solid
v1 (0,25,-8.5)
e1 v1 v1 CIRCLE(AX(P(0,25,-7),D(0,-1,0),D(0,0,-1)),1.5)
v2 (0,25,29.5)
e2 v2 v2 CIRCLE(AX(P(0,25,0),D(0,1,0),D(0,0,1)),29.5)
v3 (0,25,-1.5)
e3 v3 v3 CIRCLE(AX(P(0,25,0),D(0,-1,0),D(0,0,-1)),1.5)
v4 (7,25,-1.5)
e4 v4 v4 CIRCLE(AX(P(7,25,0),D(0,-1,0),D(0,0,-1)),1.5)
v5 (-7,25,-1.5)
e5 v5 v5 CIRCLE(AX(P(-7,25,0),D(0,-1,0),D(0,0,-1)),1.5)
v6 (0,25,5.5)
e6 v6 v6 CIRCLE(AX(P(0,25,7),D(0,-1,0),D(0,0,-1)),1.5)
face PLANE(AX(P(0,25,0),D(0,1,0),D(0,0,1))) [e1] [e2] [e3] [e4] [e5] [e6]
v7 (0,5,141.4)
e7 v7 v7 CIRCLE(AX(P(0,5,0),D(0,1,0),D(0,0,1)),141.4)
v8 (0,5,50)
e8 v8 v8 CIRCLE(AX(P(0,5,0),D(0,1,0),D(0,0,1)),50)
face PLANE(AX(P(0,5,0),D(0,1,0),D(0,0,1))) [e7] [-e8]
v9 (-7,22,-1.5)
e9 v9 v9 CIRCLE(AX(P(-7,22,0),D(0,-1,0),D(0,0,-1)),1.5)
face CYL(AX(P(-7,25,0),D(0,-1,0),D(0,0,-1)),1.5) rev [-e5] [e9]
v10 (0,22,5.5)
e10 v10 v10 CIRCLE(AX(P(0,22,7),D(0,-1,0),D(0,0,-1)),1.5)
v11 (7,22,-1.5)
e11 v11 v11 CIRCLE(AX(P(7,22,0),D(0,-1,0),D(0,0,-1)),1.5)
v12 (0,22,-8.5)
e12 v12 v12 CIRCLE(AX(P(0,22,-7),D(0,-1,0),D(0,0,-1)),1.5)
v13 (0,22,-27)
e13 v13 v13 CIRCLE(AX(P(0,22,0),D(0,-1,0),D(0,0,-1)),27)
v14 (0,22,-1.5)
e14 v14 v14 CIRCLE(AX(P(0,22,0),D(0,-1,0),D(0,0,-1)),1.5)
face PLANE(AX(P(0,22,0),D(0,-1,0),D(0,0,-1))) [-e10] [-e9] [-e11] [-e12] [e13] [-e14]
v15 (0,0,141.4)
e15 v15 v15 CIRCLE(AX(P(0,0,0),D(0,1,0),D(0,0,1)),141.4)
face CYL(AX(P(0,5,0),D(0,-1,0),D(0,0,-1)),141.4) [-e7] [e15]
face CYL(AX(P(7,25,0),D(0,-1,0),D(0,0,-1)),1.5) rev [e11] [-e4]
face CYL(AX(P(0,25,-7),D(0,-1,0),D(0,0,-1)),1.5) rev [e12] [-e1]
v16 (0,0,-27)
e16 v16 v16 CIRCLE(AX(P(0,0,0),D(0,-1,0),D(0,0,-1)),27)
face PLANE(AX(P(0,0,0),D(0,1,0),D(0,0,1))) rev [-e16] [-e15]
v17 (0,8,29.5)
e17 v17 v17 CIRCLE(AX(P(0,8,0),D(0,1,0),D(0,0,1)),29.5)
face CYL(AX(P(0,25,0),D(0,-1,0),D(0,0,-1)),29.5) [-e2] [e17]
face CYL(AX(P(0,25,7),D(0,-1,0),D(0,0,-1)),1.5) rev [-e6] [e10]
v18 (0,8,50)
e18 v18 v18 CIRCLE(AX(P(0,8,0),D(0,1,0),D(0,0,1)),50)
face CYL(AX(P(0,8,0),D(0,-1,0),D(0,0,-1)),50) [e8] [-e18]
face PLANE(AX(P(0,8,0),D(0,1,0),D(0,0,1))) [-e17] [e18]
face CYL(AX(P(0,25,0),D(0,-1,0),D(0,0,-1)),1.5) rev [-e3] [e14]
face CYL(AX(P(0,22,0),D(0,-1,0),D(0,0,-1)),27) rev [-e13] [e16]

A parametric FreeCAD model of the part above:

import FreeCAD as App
import Part
import Sketcher
from FreeCAD import Vector

doc = App.newDocument("Part")
body = doc.addObject("PartDesign::Body", "Body")

# Sketch on XZ plane
sketch1 = doc.addObject("Sketcher::SketchObject", "Sketch")
body.addObject(sketch1)
sketch1.AttachmentSupport = (doc.XZ_Plane, [""])
sketch1.MapMode = "FlatFace"
sketch1.addGeometry(Part.Circle(Vector(0, 0, 0), Vector(0, 0, 1), 141.4), False)
sketch1.addConstraint(Sketcher.Constraint("Coincident", 0, 3, -1, 1))
sketch1.addConstraint(Sketcher.Constraint("Diameter", 0, 282.8))
pad1 = doc.addObject("PartDesign::Pad", "Pad")
body.addObject(pad1)
pad1.Profile = sketch1
pad1.Length = 5
pad1.Reversed = True

# Sketch on XZ plane
sketch2 = doc.addObject("Sketcher::SketchObject", "Sketch001")
body.addObject(sketch2)
sketch2.AttachmentSupport = (doc.XZ_Plane, [""])
sketch2.MapMode = "FlatFace"
sketch2.AttachmentOffset = App.Placement(Vector(0, 0, -5), App.Rotation())
sketch2.addGeometry(Part.Circle(Vector(0, 0, 0), Vector(0, 0, 1), 50), False)
sketch2.addConstraint(Sketcher.Constraint("Coincident", 0, 3, -1, 1))
sketch2.addConstraint(Sketcher.Constraint("Diameter", 0, 100.0))
pad2 = doc.addObject("PartDesign::Pad", "Pad001")
body.addObject(pad2)
pad2.Profile = sketch2
pad2.Length = 3
pad2.Reversed = True

# Sketch on XZ plane
sketch3 = doc.addObject("Sketcher::SketchObject", "Sketch002")
body.addObject(sketch3)
sketch3.AttachmentSupport = (doc.XZ_Plane, [""])
sketch3.MapMode = "FlatFace"
sketch3.AttachmentOffset = App.Placement(Vector(0, 0, -8), App.Rotation())
sketch3.addGeometry(Part.Circle(Vector(0, 0, 0), Vector(0, 0, 1), 29.5), False)
sketch3.addConstraint(Sketcher.Constraint("Coincident", 0, 3, -1, 1))
sketch3.addConstraint(Sketcher.Constraint("Diameter", 0, 59.0))
pad3 = doc.addObject("PartDesign::Pad", "Pad002")
body.addObject(pad3)
pad3.Profile = sketch3
pad3.Length = 17
pad3.Reversed = True

# Sketch on XZ plane
sketch4 = doc.addObject("Sketcher::SketchObject", "Sketch003")
body.addObject(sketch4)
sketch4.AttachmentSupport = (doc.XZ_Plane, [""])
sketch4.MapMode = "FlatFace"
sketch4.addGeometry(Part.Circle(Vector(0, 0, 0), Vector(0, 0, 1), 27), False)
sketch4.addConstraint(Sketcher.Constraint("Coincident", 0, 3, -1, 1))
sketch4.addConstraint(Sketcher.Constraint("Diameter", 0, 54.0))
pocket1 = doc.addObject("PartDesign::Pocket", "Pocket")
body.addObject(pocket1)
pocket1.Profile = sketch4
pocket1.Length = 22

# Sketch on XZ plane
sketch5 = doc.addObject("Sketcher::SketchObject", "Sketch004")
body.addObject(sketch5)
sketch5.AttachmentSupport = (doc.XZ_Plane, [""])
sketch5.MapMode = "FlatFace"
sketch5.AttachmentOffset = App.Placement(Vector(0, 0, -22), App.Rotation())
sketch5.addGeometry(Part.Circle(Vector(0, 0, 0), Vector(0, 0, 1), 1.5), False)
sketch5.addGeometry(Part.Circle(Vector(0, 7, 0), Vector(0, 0, 1), 1.5), False)
sketch5.addGeometry(Part.Circle(Vector(7, 0, 0), Vector(0, 0, 1), 1.5), False)
sketch5.addGeometry(Part.Circle(Vector(0, -7, 0), Vector(0, 0, 1), 1.5), False)
sketch5.addGeometry(Part.Circle(Vector(-7, 0, 0), Vector(0, 0, 1), 1.5), False)
sketch5.addConstraint(Sketcher.Constraint("Coincident", 0, 3, -1, 1))
sketch5.addConstraint(Sketcher.Constraint("Equal", 0, 1))
sketch5.addConstraint(Sketcher.Constraint("Equal", 1, 2))
sketch5.addConstraint(Sketcher.Constraint("Equal", 2, 3))
sketch5.addConstraint(Sketcher.Constraint("Equal", 3, 4))
sketch5.addConstraint(Sketcher.Constraint("Symmetric", 1, 3, 3, 3, -1, 1))
sketch5.addConstraint(Sketcher.Constraint("Symmetric", 2, 3, 4, 3, -1, 1))
sketch5.addConstraint(Sketcher.Constraint("PointOnObject", 1, 3, -2))
sketch5.addConstraint(Sketcher.Constraint("PointOnObject", 2, 3, -1))
sketch5.addConstraint(Sketcher.Constraint("Diameter", 0, 3.0))
sketch5.addConstraint(Sketcher.Constraint("DistanceY", -1, 1, 1, 3, 7.0))
sketch5.addConstraint(Sketcher.Constraint("DistanceX", -1, 1, 2, 3, 7.0))
pocket2 = doc.addObject("PartDesign::Pocket", "Pocket001")
body.addObject(pocket2)
pocket2.Profile = sketch5
pocket2.Type = "ThroughAll"

doc.recompute()
